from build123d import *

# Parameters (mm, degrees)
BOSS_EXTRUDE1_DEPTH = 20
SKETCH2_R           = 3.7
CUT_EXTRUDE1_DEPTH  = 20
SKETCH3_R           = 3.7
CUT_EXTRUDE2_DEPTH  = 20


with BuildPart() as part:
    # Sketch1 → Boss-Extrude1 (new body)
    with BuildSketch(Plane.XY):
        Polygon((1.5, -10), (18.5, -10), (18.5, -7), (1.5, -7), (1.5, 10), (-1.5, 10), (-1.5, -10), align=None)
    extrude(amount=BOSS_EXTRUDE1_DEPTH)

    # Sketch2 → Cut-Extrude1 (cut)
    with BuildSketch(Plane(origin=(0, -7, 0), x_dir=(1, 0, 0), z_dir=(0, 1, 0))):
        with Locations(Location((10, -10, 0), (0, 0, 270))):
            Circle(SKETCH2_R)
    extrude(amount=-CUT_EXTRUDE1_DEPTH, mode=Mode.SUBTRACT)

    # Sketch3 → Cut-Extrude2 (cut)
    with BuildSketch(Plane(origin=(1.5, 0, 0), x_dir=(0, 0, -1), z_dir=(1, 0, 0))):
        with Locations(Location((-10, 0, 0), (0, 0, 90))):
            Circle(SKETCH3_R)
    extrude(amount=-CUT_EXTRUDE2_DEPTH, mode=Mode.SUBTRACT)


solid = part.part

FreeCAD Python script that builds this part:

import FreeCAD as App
import Part
import Sketcher

V = App.Vector
Q = App.Units.Quantity


def add_polygon(sketch, points):
    """Adds a closed chain of lines whose ends are joined by coincident constraints."""
    first, n = sketch.GeometryCount, len(points)
    for a, b in zip(points, points[1:] + points[:1]):
        sketch.addGeometry(Part.LineSegment(App.Vector(*a, 0), App.Vector(*b, 0)), False)
    for i in range(n):
        sketch.addConstraint(Sketcher.Constraint("Coincident", first + i, 2, first + (i + 1) % n, 1))

doc = App.newDocument("Part")
body = doc.addObject("PartDesign::Body", "Body")

# Sketch on XY plane
sketch1 = body.newObject("Sketcher::SketchObject", "Sketch")
sketch1.AttachmentSupport = (doc.getObject("XY_Plane"), [""])
sketch1.MapMode = "FlatFace"
add_polygon(sketch1, [(18.5, -10), (18.5, -7), (1.5, -7), (1.5, 10), (-1.5, 10), (-1.5, -10)])  # lines 0-5
sketch1.addConstraint([
    Sketcher.Constraint("Vertical", 0),
    Sketcher.Constraint("Horizontal", 1),
    Sketcher.Constraint("Vertical", 2),
    Sketcher.Constraint("Horizontal", 3),
    Sketcher.Constraint("Vertical", 4),
    Sketcher.Constraint("Horizontal", 5),
    Sketcher.Constraint("Symmetric", 2, 2, 4, 2, -1, 1),
    Sketcher.Constraint("Equal", 3, 0),
    Sketcher.Constraint("Equal", 1, 2),
    Sketcher.Constraint("DistanceX", 1, 2, 1, 1, Q("17 mm")),
    Sketcher.Constraint("DistanceX", 3, 2, 3, 1, Q("3 mm")),
])
pad1 = body.newObject("PartDesign::Pad", "Pad")
pad1.Profile = sketch1
pad1.Length = 20

# Sketch on XZ plane
sketch2 = body.newObject("Sketcher::SketchObject", "Sketch001")
sketch2.AttachmentSupport = (doc.getObject("XZ_Plane"), [""])
sketch2.MapMode = "FlatFace"
sketch2.AttachmentOffset = App.Placement(V(0, 0, 7), App.Rotation())
sketch2.addGeometry(Part.Circle(V(10, 10, 0), V(0, 0, 1), 3.7), False)
sketch2.addConstraint([
    Sketcher.Constraint("Diameter", 0, Q("7.4 mm")),
    Sketcher.Constraint("DistanceX", -1, 1, 0, 3, Q("10 mm")),
    Sketcher.Constraint("DistanceY", -1, 1, 0, 3, Q("10 mm")),
])
pocket1 = body.newObject("PartDesign::Pocket", "Pocket")
pocket1.Profile = sketch2
pocket1.Length = 20
pocket1.Reversed = True

# Sketch on YZ plane
sketch3 = body.newObject("Sketcher::SketchObject", "Sketch002")
sketch3.AttachmentSupport = (doc.getObject("YZ_Plane"), [""])
sketch3.MapMode = "FlatFace"
sketch3.AttachmentOffset = App.Placement(V(0, 0, 1.5), App.Rotation())
sketch3.addGeometry(Part.Circle(V(0, 10, 0), V(0, 0, 1), 3.7), False)
sketch3.addConstraint([
    Sketcher.Constraint("PointOnObject", 0, 3, -2),
    Sketcher.Constraint("Diameter", 0, Q("7.4 mm")),
    Sketcher.Constraint("DistanceY", -1, 1, 0, 3, Q("10 mm")),
])
pocket2 = body.newObject("PartDesign::Pocket", "Pocket001")
pocket2.Profile = sketch3
pocket2.Length = 20

doc.recompute()
